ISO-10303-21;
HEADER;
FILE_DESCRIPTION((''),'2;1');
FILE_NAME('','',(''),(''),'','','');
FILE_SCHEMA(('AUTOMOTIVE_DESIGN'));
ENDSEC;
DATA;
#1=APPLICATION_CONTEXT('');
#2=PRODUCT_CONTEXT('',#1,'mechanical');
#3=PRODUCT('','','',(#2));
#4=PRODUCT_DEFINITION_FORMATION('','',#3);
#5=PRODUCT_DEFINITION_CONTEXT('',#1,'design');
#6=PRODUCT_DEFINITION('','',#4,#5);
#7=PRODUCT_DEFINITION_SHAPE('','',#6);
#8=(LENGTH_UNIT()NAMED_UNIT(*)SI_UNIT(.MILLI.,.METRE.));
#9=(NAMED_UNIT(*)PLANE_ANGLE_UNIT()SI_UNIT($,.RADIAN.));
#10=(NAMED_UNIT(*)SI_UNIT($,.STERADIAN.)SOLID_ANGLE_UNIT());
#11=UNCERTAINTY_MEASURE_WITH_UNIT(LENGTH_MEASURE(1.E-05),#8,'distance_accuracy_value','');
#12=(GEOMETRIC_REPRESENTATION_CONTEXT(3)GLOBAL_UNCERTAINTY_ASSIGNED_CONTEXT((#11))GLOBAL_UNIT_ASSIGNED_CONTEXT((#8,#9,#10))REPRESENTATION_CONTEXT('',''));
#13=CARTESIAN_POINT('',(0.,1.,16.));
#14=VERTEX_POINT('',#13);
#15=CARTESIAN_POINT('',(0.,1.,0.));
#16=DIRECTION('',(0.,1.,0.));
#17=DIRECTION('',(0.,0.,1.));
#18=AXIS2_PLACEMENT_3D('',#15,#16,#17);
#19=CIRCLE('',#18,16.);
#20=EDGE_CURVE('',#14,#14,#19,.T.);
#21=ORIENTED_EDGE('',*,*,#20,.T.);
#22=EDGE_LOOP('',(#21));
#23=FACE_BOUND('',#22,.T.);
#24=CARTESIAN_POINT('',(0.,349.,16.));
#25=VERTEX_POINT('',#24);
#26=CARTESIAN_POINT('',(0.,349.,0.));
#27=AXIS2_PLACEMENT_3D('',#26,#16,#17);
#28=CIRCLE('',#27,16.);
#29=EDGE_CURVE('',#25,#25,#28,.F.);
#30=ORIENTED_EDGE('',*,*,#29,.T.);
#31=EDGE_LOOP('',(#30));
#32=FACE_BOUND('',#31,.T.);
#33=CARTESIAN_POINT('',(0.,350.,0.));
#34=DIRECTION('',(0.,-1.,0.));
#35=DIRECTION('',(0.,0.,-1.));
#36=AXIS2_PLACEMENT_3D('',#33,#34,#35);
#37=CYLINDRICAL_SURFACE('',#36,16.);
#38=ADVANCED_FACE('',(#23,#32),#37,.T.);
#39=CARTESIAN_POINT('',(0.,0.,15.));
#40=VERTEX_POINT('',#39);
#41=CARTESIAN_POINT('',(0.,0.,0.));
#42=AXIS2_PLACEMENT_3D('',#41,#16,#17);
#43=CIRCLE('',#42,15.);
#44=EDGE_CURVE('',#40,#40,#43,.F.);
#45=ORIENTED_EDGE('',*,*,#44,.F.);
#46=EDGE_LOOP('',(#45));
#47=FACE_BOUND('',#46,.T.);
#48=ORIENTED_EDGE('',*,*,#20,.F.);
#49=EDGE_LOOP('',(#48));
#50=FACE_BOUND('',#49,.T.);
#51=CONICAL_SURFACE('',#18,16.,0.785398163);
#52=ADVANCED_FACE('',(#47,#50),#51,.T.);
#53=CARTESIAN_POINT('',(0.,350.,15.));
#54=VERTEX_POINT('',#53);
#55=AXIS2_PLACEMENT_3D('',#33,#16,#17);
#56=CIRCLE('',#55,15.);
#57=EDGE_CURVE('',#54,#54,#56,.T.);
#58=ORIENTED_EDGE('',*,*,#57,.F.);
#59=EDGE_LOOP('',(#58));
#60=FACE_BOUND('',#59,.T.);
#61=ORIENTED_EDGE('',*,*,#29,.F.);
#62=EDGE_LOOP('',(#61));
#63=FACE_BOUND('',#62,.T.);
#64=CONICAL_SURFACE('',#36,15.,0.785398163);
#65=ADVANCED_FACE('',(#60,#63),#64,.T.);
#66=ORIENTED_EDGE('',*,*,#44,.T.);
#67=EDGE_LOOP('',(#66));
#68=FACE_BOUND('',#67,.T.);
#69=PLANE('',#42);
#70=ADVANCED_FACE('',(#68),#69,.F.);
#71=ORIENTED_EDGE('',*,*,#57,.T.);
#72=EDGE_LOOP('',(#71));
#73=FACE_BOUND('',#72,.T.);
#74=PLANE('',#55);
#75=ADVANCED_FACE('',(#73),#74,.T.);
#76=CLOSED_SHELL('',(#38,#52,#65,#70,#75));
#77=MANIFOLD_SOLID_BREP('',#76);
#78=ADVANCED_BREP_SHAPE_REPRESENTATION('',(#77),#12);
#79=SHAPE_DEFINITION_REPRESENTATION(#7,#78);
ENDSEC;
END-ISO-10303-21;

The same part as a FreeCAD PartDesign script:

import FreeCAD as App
import Part
import Sketcher
from FreeCAD import Vector


def edges_at(feature, points):
    """Names of the edges that pass closest to the given points."""
    edges = feature.Shape.Edges
    near = lambda p: min(range(len(edges)), key=lambda i: edges[i].distToShape(Part.Vertex(*p))[0])
    return sorted({f"Edge{near(p) + 1}" for p in points})

doc = App.newDocument("Part")
params = doc.addObject("Spreadsheet::Sheet", "Params")
for row, (alias, value) in enumerate([
    ("sketch1_diameter", "32 mm"),
    ("pad1_length", "350 mm"),
    ("chamfer_size", "1 mm"),
], start=1):
    params.set(f"A{row}", alias)
    params.set(f"B{row}", "=" + value)
    params.setAlias(f"B{row}", alias)

body = doc.addObject("PartDesign::Body", "Body")

# Sketch on XZ plane
sketch1 = doc.addObject("Sketcher::SketchObject", "Sketch")
body.addObject(sketch1)
sketch1.AttachmentSupport = (doc.XZ_Plane, [""])
sketch1.MapMode = "FlatFace"
sketch1.addGeometry(Part.Circle(Vector(0, 0, 0), Vector(0, 0, 1), 16), False)
sketch1.addConstraint(Sketcher.Constraint("Coincident", 0, 3, -1, 1))
sketch1.addConstraint(Sketcher.Constraint("Diameter", 0, 32.0))
sketch1.setExpression("Constraints[1]", "Params.sketch1_diameter")
pad1 = doc.addObject("PartDesign::Pad", "Pad")
body.addObject(pad1)
pad1.Profile = sketch1
pad1.setExpression("Length", "Params.pad1_length")
pad1.Reversed = True
doc.recompute()

chamfer = doc.addObject("PartDesign::Chamfer", "Chamfer")
body.addObject(chamfer)
chamfer.Base = (pad1, edges_at(pad1, [(0, 0, -16), (0, 350, -16)]))
chamfer.setExpression("Size", "Params.chamfer_size")

doc.recompute()
